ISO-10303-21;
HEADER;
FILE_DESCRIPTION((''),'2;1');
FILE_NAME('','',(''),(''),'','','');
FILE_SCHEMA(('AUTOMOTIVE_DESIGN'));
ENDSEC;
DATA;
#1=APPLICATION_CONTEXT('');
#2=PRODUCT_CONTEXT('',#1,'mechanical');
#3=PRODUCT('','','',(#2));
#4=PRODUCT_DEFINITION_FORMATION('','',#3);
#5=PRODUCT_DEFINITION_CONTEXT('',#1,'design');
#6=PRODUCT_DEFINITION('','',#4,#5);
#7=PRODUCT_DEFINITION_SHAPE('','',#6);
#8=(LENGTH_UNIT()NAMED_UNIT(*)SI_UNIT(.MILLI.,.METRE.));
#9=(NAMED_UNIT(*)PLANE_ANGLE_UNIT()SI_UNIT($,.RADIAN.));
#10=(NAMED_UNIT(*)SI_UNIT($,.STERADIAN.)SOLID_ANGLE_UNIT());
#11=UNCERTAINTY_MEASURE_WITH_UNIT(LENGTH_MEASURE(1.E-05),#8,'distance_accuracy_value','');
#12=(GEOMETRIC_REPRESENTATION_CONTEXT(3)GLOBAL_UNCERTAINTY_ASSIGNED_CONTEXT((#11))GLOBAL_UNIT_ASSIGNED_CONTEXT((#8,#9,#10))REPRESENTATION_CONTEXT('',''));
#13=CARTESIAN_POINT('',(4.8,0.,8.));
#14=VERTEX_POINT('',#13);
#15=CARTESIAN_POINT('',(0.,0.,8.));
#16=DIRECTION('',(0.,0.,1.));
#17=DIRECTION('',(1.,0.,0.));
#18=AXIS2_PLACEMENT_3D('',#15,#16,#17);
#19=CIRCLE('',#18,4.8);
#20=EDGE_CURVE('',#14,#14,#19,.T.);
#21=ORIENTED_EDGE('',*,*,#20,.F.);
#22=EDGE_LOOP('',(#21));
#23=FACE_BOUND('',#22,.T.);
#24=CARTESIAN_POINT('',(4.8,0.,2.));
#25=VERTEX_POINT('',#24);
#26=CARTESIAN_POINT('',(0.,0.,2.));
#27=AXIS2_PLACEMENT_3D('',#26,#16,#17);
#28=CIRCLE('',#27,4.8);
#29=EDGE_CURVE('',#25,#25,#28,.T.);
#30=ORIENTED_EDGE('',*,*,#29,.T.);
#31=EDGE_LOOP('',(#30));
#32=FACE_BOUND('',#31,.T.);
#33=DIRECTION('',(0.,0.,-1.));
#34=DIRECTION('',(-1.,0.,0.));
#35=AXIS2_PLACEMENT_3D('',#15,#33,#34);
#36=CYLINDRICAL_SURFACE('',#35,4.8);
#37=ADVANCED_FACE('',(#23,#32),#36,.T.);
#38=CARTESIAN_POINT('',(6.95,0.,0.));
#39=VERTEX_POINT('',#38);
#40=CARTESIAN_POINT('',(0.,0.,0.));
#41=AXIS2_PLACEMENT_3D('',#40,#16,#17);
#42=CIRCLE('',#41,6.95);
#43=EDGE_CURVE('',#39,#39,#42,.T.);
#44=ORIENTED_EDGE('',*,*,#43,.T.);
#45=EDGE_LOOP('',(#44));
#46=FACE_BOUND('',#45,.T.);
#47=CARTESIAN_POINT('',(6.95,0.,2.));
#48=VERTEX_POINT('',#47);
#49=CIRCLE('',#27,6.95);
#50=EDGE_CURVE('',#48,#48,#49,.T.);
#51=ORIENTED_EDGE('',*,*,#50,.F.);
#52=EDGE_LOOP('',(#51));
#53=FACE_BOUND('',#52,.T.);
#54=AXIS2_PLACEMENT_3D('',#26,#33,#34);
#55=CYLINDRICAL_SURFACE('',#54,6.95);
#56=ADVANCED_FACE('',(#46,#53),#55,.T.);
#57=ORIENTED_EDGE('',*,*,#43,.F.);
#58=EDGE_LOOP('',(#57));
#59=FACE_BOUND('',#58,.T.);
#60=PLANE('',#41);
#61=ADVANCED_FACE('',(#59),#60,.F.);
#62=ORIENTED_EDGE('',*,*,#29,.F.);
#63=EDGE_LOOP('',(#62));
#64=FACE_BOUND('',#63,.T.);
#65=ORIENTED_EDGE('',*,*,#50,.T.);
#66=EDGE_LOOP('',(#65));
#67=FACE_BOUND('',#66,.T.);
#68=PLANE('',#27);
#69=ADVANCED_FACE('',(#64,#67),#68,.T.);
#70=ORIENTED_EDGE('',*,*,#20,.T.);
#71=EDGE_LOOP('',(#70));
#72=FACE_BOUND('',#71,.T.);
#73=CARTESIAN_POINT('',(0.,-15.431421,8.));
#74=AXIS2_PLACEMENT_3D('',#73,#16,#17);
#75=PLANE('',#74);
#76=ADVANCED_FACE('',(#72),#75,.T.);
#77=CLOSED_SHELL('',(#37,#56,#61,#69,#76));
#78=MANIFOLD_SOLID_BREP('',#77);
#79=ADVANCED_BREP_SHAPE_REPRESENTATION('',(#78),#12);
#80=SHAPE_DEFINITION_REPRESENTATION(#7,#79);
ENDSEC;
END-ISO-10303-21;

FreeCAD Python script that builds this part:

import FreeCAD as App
import Part
import Sketcher

doc = App.newDocument("Part")
body = doc.addObject("PartDesign::Body", "Body")

# Sketch on XY plane
sketch1 = body.newObject("Sketcher::SketchObject", "Sketch")
sketch1.AttachmentSupport = (doc.getObject("XY_Plane"), [""])
sketch1.MapMode = "FlatFace"
sketch1.addGeometry(Part.Circle(App.Vector(0, 0, 0), App.Vector(0, 0, 1), 6.95), False)
sketch1.addConstraint(Sketcher.Constraint("Coincident", 0, 3, -1, 1))
sketch1.addConstraint(Sketcher.Constraint("Diameter", 0, 13.9))
pad1 = body.newObject("PartDesign::Pad", "Pad")
pad1.Profile = sketch1
pad1.Length = 2

# Sketch on XY plane
sketch2 = body.newObject("Sketcher::SketchObject", "Sketch001")
sketch2.AttachmentSupport = (doc.getObject("XY_Plane"), [""])
sketch2.MapMode = "FlatFace"
sketch2.AttachmentOffset = App.Placement(App.Vector(0, 0, 2), App.Rotation())
sketch2.addGeometry(Part.Circle(App.Vector(0, 0, 0), App.Vector(0, 0, 1), 4.8), False)
sketch2.addConstraint(Sketcher.Constraint("Coincident", 0, 3, -1, 1))
sketch2.addConstraint(Sketcher.Constraint("Diameter", 0, 9.6))
pad2 = body.newObject("PartDesign::Pad", "Pad001")
pad2.Profile = sketch2
pad2.Length = 6

doc.recompute()
